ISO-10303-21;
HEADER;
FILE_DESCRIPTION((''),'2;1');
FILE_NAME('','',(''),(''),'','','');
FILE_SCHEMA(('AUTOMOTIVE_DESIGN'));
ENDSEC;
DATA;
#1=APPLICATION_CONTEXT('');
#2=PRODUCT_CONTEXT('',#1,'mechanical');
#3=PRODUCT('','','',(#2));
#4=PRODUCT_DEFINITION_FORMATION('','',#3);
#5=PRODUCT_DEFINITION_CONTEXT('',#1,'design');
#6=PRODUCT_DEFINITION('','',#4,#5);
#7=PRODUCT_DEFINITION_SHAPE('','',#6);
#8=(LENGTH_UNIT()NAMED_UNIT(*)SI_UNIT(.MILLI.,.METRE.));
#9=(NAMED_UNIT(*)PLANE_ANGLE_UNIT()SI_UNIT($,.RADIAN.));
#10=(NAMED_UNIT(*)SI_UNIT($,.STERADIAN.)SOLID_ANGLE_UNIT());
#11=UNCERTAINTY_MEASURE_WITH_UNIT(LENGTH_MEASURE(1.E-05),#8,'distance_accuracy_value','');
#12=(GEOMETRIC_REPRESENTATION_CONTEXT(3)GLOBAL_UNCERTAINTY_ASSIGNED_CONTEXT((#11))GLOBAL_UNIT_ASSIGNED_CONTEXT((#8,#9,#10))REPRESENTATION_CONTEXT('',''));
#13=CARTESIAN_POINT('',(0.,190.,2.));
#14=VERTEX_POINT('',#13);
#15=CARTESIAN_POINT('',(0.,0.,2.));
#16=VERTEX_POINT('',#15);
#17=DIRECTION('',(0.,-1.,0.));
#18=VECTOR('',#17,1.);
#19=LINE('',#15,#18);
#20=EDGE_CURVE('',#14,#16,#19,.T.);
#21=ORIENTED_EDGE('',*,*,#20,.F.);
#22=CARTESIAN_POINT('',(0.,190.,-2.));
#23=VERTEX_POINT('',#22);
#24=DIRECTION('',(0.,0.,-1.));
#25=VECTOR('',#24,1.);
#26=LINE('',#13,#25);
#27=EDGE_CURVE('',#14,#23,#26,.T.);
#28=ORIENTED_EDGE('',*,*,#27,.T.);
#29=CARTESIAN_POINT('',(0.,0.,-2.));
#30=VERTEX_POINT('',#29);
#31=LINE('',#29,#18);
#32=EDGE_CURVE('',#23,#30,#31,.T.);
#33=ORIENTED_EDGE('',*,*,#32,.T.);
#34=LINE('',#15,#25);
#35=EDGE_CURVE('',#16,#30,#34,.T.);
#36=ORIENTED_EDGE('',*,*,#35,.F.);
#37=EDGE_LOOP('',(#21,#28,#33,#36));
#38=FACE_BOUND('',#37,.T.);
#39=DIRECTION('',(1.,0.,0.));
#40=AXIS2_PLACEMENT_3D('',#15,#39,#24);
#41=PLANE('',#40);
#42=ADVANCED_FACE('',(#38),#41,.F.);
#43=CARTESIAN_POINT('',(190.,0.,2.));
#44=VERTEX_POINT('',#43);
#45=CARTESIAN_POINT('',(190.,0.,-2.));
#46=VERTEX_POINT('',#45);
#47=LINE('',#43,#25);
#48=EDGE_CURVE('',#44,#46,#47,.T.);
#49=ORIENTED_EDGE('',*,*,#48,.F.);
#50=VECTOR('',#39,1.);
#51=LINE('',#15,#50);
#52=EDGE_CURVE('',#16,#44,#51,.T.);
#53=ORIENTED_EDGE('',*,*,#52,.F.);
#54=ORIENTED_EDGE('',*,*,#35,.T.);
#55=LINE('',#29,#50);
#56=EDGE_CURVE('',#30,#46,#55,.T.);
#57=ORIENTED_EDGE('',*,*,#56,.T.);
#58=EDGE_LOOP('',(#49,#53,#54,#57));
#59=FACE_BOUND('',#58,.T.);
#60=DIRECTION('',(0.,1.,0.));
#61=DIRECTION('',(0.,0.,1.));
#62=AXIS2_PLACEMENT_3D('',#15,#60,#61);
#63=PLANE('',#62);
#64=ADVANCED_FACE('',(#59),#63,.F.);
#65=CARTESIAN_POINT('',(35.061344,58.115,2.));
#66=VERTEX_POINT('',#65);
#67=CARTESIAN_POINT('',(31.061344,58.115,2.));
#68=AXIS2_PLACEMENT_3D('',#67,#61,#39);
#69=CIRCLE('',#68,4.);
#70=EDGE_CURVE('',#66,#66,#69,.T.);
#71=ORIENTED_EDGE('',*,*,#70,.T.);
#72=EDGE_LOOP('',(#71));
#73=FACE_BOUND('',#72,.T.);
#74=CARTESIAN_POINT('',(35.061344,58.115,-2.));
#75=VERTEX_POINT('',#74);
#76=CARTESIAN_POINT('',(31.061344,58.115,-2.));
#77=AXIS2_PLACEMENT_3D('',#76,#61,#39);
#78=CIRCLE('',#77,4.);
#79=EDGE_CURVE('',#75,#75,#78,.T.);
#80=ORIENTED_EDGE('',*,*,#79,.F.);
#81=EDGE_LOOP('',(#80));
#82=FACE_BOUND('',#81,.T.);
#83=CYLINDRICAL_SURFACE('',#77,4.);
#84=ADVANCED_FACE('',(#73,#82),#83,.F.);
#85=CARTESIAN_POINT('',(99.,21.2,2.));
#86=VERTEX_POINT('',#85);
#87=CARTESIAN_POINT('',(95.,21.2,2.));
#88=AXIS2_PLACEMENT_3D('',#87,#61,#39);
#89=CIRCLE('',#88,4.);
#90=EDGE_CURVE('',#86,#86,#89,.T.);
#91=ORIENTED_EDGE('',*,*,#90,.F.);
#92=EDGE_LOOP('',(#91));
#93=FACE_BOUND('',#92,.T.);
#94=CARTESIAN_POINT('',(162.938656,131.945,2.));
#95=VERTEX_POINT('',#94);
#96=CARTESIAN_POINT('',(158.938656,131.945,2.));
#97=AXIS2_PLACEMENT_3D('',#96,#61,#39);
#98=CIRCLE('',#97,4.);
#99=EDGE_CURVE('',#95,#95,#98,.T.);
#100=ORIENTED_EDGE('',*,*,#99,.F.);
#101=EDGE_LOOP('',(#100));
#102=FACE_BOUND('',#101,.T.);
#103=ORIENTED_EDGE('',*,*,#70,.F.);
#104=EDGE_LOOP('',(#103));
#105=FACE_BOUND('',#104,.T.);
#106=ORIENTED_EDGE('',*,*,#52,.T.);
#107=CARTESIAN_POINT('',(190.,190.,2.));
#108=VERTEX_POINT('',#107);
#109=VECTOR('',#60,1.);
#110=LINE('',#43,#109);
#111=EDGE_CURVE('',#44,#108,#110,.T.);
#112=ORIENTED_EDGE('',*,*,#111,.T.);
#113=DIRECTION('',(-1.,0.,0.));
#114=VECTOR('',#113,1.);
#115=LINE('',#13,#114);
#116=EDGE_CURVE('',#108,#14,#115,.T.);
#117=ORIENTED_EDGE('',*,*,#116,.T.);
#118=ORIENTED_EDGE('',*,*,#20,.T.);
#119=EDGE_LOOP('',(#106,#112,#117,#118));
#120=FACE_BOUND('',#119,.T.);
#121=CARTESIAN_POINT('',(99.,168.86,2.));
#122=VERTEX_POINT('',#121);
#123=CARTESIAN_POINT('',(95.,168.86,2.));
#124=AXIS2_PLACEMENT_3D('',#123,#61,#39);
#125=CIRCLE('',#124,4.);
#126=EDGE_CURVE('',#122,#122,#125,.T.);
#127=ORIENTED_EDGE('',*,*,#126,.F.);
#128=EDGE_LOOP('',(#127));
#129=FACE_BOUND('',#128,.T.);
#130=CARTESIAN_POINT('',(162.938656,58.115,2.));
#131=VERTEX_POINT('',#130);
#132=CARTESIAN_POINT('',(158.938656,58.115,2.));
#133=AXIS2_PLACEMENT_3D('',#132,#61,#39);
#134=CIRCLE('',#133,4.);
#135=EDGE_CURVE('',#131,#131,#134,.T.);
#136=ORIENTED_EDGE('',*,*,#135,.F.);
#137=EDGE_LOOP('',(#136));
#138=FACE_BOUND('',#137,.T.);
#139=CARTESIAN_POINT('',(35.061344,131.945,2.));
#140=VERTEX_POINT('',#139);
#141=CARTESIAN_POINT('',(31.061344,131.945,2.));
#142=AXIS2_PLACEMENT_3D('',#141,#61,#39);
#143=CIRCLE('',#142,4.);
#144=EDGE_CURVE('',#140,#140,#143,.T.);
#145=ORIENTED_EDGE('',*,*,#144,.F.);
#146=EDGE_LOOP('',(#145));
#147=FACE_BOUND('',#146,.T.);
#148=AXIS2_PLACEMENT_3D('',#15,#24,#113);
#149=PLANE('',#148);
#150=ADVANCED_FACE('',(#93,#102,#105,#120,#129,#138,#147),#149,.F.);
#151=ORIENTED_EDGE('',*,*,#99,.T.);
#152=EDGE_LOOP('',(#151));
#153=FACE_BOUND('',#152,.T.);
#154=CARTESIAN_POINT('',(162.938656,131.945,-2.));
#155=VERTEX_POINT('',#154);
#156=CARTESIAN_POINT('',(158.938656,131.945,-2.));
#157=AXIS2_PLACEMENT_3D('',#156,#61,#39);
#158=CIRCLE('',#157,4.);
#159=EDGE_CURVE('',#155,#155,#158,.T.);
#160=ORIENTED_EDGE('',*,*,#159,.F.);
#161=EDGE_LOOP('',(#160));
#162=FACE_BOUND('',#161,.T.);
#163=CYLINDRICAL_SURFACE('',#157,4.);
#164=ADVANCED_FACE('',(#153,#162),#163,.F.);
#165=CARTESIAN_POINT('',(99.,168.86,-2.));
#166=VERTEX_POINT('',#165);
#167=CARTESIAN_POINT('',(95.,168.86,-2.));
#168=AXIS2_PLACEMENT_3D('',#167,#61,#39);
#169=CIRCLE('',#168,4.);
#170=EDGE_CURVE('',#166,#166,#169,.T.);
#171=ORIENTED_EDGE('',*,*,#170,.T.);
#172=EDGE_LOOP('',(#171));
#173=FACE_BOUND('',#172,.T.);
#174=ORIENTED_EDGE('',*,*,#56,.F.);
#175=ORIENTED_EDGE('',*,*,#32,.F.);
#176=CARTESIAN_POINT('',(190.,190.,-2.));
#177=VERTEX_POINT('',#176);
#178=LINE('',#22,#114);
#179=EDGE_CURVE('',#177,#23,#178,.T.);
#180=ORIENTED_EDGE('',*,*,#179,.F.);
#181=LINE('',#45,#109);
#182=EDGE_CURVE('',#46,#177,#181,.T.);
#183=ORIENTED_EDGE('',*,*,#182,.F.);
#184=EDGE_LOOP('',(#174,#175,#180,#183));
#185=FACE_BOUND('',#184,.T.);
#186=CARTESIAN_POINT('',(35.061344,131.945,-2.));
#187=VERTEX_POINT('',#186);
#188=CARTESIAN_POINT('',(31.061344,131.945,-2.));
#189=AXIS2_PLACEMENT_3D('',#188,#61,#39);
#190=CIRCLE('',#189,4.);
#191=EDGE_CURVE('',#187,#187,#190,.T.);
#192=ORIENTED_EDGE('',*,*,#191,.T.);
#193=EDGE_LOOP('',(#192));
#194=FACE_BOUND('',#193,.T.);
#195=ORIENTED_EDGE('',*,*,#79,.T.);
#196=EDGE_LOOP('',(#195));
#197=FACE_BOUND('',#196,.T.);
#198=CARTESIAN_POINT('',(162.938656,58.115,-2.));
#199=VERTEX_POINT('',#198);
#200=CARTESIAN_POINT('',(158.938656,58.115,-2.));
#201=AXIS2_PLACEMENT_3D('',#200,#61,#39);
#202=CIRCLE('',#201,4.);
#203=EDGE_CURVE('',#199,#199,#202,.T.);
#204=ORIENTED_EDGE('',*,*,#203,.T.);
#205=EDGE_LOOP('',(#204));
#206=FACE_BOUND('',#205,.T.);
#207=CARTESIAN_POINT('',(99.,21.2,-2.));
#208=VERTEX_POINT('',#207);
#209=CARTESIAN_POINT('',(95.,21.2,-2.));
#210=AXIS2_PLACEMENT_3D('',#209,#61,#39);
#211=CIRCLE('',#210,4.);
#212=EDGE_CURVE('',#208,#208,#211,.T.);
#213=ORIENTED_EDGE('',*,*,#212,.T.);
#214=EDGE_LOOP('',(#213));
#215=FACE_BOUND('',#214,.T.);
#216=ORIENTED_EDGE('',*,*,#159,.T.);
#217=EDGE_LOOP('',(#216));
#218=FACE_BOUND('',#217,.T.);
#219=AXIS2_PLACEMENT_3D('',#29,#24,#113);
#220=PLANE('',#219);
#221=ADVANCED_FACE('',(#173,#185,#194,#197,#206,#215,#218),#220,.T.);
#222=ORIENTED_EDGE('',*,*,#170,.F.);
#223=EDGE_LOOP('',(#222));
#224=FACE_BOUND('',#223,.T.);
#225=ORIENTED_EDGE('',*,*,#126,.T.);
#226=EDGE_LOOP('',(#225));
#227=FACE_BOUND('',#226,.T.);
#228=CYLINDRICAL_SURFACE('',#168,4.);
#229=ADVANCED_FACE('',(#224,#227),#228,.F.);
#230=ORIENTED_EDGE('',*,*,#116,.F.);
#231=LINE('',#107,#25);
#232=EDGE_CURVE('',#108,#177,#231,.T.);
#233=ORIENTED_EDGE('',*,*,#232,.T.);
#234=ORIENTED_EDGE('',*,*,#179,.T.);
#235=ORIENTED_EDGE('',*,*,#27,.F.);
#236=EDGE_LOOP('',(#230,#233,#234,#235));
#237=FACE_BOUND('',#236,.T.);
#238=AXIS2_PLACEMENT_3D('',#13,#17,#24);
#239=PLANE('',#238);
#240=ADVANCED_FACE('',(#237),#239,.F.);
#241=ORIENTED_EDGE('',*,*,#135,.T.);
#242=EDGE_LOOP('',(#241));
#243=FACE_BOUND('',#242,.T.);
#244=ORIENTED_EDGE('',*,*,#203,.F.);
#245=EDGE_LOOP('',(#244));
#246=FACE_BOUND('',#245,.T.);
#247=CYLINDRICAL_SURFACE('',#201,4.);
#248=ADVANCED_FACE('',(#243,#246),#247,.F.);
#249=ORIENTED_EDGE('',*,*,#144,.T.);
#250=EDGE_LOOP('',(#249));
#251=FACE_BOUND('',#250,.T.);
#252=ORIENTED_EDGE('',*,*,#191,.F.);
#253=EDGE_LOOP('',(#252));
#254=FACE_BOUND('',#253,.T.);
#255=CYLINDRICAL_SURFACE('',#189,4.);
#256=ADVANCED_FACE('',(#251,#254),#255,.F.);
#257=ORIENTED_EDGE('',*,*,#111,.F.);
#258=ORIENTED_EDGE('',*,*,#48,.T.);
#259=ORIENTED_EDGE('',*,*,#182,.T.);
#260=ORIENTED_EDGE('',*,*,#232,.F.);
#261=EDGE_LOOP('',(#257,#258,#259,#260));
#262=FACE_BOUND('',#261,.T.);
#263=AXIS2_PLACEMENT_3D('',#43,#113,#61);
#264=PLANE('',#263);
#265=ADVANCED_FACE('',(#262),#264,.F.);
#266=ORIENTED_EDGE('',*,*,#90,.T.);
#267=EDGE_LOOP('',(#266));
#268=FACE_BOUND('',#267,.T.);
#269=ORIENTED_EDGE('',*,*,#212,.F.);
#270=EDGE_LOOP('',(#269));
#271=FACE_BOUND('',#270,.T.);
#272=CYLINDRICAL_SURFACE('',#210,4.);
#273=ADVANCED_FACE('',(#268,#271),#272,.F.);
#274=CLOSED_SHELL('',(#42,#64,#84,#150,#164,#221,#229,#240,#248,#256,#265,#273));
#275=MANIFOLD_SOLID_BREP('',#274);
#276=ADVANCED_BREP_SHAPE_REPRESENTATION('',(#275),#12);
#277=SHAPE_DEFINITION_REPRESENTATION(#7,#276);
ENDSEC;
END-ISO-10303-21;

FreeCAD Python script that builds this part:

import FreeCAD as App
import Part
import Sketcher


def add_polygon(sketch, points):
    """Adds a closed chain of lines whose ends are joined by coincident constraints."""
    first, n = sketch.GeometryCount, len(points)
    for a, b in zip(points, points[1:] + points[:1]):
        sketch.addGeometry(Part.LineSegment(App.Vector(*a, 0), App.Vector(*b, 0)), False)
    for i in range(n):
        sketch.addConstraint(Sketcher.Constraint("Coincident", first + i, 2, first + (i + 1) % n, 1))

doc = App.newDocument("Part")
body = doc.addObject("PartDesign::Body", "Body")

# Sketch on XY plane
sketch1 = body.newObject("Sketcher::SketchObject", "Sketch")
sketch1.AttachmentSupport = (doc.getObject("XY_Plane"), [""])
sketch1.MapMode = "FlatFace"
add_polygon(sketch1, [(0, 190), (0, 0), (190, 0), (190, 190)])  # lines 0-3
sketch1.addConstraint([
    Sketcher.Constraint("Vertical", 0),
    Sketcher.Constraint("Horizontal", 1),
    Sketcher.Constraint("Vertical", 2),
    Sketcher.Constraint("Horizontal", 3),
    Sketcher.Constraint("Coincident", 0, 2, -1, 1),
    Sketcher.Constraint("Equal", 3, 0),
    Sketcher.Constraint("DistanceX", 1, 1, 1, 2, 190.0),
])
pad1 = body.newObject("PartDesign::Pad", "Pad")
pad1.Profile = sketch1
pad1.Length = 4
pad1.Midplane = True

# Sketch on XY plane
sketch2 = body.newObject("Sketcher::SketchObject", "Sketch001")
sketch2.AttachmentSupport = (doc.getObject("XY_Plane"), [""])
sketch2.MapMode = "FlatFace"
sketch2.AttachmentOffset = App.Placement(App.Vector(0, 0, 2), App.Rotation())
sketch2.addGeometry([
    Part.Circle(App.Vector(95, 168.9, 0), App.Vector(0, 0, 1), 4),  # 0
    Part.Circle(App.Vector(158.9, 131.9, 0), App.Vector(0, 0, 1), 4),  # 1
    Part.Circle(App.Vector(158.9, 58.1, 0), App.Vector(0, 0, 1), 4),  # 2
    Part.Circle(App.Vector(95, 21.2, 0), App.Vector(0, 0, 1), 4),  # 3
    Part.Circle(App.Vector(31.1, 58.1, 0), App.Vector(0, 0, 1), 4),  # 4
    Part.Circle(App.Vector(31.1, 131.9, 0), App.Vector(0, 0, 1), 4),  # 5
], False)
sketch2.addConstraint([
    Sketcher.Constraint("Equal", 0, 1),
    Sketcher.Constraint("Equal", 1, 2),
    Sketcher.Constraint("Equal", 2, 3),
    Sketcher.Constraint("Equal", 3, 4),
    Sketcher.Constraint("Equal", 4, 5),
    Sketcher.Constraint("Horizontal", 2, 3, 4, 3),
    Sketcher.Constraint("Horizontal", 1, 3, 5, 3),
    Sketcher.Constraint("Vertical", 1, 3, 2, 3),
    Sketcher.Constraint("Vertical", 0, 3, 3, 3),
    Sketcher.Constraint("Vertical", 4, 3, 5, 3),
    Sketcher.Constraint("Diameter", 0, 8.0),
    Sketcher.Constraint("DistanceX", -1, 1, 0, 3, 95.0),
    Sketcher.Constraint("DistanceY", -1, 1, 3, 3, 21.2),
    Sketcher.Constraint("DistanceY", -1, 1, 0, 3, 168.86),
    Sketcher.Constraint("DistanceY", 2, 3, 1, 3, 73.83),
    Sketcher.Constraint("DistanceY", -1, 1, 1, 3, 131.945),
    Sketcher.Constraint("DistanceX", 4, 3, 2, 3, 127.877311),
    Sketcher.Constraint("DistanceX", -1, 1, 1, 3, 158.938656),
])
pocket1 = body.newObject("PartDesign::Pocket", "Pocket")
pocket1.Profile = sketch2
pocket1.Length = 4

doc.recompute()
